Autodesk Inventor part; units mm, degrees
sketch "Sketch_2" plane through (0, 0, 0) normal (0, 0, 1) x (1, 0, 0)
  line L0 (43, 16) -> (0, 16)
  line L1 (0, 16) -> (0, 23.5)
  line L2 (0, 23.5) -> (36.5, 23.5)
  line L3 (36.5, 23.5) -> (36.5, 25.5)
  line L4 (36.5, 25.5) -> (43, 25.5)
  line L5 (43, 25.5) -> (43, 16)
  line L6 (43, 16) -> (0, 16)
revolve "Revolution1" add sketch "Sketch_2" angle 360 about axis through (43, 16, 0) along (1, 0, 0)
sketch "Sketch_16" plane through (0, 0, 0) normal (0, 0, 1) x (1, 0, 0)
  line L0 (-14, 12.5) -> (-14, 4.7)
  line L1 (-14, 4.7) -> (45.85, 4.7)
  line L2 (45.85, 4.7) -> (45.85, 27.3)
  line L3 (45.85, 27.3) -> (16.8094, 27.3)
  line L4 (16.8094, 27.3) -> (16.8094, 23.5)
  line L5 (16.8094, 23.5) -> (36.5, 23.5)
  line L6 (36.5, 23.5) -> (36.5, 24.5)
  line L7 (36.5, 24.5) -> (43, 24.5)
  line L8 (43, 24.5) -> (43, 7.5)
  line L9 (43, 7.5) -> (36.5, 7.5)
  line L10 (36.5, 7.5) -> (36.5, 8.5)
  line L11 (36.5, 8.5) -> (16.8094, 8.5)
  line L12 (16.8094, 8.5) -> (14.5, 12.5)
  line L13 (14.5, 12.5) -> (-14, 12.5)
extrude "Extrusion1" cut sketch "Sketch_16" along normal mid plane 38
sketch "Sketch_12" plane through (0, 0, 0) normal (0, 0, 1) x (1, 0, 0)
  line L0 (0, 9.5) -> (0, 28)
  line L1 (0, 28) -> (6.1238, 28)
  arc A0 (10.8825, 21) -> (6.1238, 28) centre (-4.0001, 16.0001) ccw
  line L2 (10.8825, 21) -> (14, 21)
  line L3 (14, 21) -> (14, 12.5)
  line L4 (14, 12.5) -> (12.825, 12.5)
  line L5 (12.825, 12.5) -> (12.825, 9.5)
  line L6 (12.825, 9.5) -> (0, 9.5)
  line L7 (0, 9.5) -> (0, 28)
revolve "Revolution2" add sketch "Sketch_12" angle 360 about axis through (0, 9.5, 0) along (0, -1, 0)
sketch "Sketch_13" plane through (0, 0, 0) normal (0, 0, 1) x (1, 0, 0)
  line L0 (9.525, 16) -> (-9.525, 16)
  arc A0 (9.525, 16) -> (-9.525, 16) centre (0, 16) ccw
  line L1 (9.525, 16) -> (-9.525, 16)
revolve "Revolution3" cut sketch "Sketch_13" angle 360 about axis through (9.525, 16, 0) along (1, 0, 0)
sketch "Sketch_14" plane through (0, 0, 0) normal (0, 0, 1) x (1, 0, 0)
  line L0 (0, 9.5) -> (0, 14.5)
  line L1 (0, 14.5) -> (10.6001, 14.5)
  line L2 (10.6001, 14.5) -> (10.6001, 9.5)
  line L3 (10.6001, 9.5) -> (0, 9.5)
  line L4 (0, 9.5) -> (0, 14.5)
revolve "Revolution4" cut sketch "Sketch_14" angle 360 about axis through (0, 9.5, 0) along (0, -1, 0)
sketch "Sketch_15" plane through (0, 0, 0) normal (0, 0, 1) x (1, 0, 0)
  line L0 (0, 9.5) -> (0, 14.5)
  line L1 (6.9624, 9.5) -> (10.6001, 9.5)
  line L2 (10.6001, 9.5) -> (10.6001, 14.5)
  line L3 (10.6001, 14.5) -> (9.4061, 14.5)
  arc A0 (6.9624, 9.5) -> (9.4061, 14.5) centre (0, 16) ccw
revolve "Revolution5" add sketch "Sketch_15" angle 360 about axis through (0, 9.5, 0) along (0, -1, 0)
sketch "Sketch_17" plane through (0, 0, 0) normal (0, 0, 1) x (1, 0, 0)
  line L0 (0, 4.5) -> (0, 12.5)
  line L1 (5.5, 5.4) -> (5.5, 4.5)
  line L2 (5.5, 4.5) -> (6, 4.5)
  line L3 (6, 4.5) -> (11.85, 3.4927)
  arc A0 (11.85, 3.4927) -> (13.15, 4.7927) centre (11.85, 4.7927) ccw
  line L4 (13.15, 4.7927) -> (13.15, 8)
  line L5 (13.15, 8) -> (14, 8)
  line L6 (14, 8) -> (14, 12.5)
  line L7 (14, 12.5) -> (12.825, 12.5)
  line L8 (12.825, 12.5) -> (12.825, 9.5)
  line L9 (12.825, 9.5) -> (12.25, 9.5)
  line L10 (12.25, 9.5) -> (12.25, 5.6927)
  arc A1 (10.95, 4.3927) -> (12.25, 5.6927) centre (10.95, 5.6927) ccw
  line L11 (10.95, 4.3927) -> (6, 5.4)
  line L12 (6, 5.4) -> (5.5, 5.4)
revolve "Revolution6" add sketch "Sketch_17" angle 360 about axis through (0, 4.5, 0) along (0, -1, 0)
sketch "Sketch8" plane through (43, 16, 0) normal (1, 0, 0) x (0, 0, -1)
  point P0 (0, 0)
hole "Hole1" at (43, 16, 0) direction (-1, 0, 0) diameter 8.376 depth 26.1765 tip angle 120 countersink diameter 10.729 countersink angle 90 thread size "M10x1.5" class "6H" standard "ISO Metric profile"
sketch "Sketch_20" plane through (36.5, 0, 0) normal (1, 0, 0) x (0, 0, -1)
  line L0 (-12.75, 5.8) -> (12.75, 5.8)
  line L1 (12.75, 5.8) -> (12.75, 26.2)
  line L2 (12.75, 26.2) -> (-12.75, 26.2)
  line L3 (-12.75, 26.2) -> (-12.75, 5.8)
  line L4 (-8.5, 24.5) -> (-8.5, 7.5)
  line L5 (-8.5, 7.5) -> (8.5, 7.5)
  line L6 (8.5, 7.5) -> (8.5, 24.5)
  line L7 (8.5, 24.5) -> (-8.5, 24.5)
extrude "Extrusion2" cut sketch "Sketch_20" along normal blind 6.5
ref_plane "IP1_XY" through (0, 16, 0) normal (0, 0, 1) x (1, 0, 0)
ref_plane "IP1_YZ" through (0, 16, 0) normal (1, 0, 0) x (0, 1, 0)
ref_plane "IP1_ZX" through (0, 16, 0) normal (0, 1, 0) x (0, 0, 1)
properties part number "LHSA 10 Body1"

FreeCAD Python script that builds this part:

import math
import FreeCAD as App
import Part
import Sketcher
Q = App.Units.Quantity


def add_polygon(sketch, points):
    """Adds a closed chain of lines whose ends are joined by coincident constraints."""
    first, n = sketch.GeometryCount, len(points)
    for a, b in zip(points, points[1:] + points[:1]):
        sketch.addGeometry(Part.LineSegment(App.Vector(*a, 0), App.Vector(*b, 0)), False)
    for i in range(n):
        sketch.addConstraint(Sketcher.Constraint("Coincident", first + i, 2, first + (i + 1) % n, 1))

doc = App.newDocument("Part")
body = doc.addObject("PartDesign::Body", "Body")

sketch1 = body.newObject("Sketcher::SketchObject", "Sketch")
sketch1.AttachmentSupport = (doc.getObject("XY_Plane"), [""])
sketch1.MapMode = "FlatFace"
add_polygon(sketch1, [(0, 16), (43, 16), (43, 25.5), (36.5, 25.5), (36.5, 23.5), (0, 23.5)])
sketch1.addGeometry(Part.LineSegment(App.Vector(0, 16, 0), App.Vector(43, 16, 0)), True)
sketch1.addConstraint([
    Sketcher.Constraint("Horizontal", 0),
    Sketcher.Constraint("Vertical", 1),
    Sketcher.Constraint("Horizontal", 2),
    Sketcher.Constraint("Vertical", 3),
    Sketcher.Constraint("Horizontal", 4),
    Sketcher.Constraint("Vertical", 5),
    Sketcher.Constraint("Horizontal", 6),
    Sketcher.Constraint("Coincident", 6, 1, 5, 2),
    Sketcher.Constraint("PointOnObject", 4, 2, -2),
    Sketcher.Constraint("Vertical", 1, 2, 6, 2),
    Sketcher.Constraint("DistanceX", 0, 1, 0, 2, 43.0),
    Sketcher.Constraint("DistanceY", 3, 2, 3, 1, 2.0),
    Sketcher.Constraint("DistanceX", 2, 2, 2, 1, 6.5),
    Sketcher.Constraint("DistanceY", 1, 1, 1, 2, 9.5),
    Sketcher.Constraint("DistanceY", -1, 1, 0, 2, 16.0),
])
revolution = body.newObject("PartDesign::Revolution", "Revolution")
revolution.Profile = sketch1
revolution.ReferenceAxis = (sketch1, ["Axis0"])
revolution.Angle = 360

sketch2 = body.newObject("Sketcher::SketchObject", "Sketch001")
sketch2.AttachmentSupport = (doc.getObject("XY_Plane"), [""])
sketch2.MapMode = "FlatFace"
add_polygon(sketch2, [(14.5, 12.5), (-14, 12.5), (-14, 4.7), (45.85, 4.7), (45.85, 27.3), (16.8094, 27.3), (16.8094, 23.5), (36.5, 23.5), (36.5, 24.5), (43, 24.5), (43, 7.5), (36.5, 7.5), (36.5, 8.5), (16.8094, 8.5)])
sketch2.addConstraint([
    Sketcher.Constraint("Horizontal", 0),
    Sketcher.Constraint("Vertical", 1),
    Sketcher.Constraint("Horizontal", 2),
    Sketcher.Constraint("Vertical", 3),
    Sketcher.Constraint("Horizontal", 4),
    Sketcher.Constraint("Vertical", 5),
    Sketcher.Constraint("Horizontal", 6),
    Sketcher.Constraint("Vertical", 7),
    Sketcher.Constraint("Horizontal", 8),
    Sketcher.Constraint("Vertical", 9),
    Sketcher.Constraint("Horizontal", 10),
    Sketcher.Constraint("Vertical", 11),
    Sketcher.Constraint("Horizontal", 12),
    Sketcher.Constraint("Vertical", 7, 2, 10, 2),
    Sketcher.Constraint("Vertical", 5, 2, 12, 2),
    Sketcher.Constraint("Equal", 7, 11),
    Sketcher.Constraint("DistanceY", 7, 1, 7, 2, 1.0),
    Sketcher.Constraint("DistanceY", 9, 2, 9, 1, 17.0),
    Sketcher.Constraint("Angle", 13, Q("120 deg")),
    Sketcher.Constraint("DistanceX", 0, 2, 0, 1, 28.5),
    Sketcher.Constraint("DistanceX", 8, 1, 8, 2, 6.5),
    Sketcher.Constraint("DistanceY", 1, 2, 1, 1, 7.8),
    Sketcher.Constraint("DistanceY", 3, 1, 3, 2, 22.6),
    Sketcher.Constraint("DistanceY", 5, 2, 5, 1, 3.8),
    Sketcher.Constraint("DistanceX", 0, 2, -1, 1, 14.0),
    Sketcher.Constraint("DistanceX", -1, 1, 8, 2, 43.0),
    Sketcher.Constraint("DistanceX", 2, 1, 2, 2, 59.85),
    Sketcher.Constraint("DistanceY", -1, 1, 0, 2, 12.5),
])
pocket1 = body.newObject("PartDesign::Pocket", "Pocket")
pocket1.Profile = sketch2
pocket1.Length = 38
pocket1.Midplane = True

sketch3 = body.newObject("Sketcher::SketchObject", "Sketch002")
sketch3.AttachmentSupport = (doc.getObject("XY_Plane"), [""])
sketch3.MapMode = "FlatFace"
sketch3.addGeometry([
    Part.LineSegment(App.Vector(0, 28, 0), App.Vector(0, 9.5, 0)),
    Part.LineSegment(App.Vector(0, 9.5, 0), App.Vector(12.825, 9.5, 0)),
    Part.LineSegment(App.Vector(12.825, 9.5, 0), App.Vector(12.825, 12.5, 0)),
    Part.LineSegment(App.Vector(12.825, 12.5, 0), App.Vector(14, 12.5, 0)),
    Part.LineSegment(App.Vector(14, 12.5, 0), App.Vector(14, 21, 0)),
    Part.LineSegment(App.Vector(14, 21, 0), App.Vector(10.8825, 21, 0)),
    Part.ArcOfCircle(Part.Circle(App.Vector(-4.0001, 16.0001, 0), App.Vector(0, 0, 1), 15.700025), math.radians(18.570087), math.radians(49.846833)),
    Part.LineSegment(App.Vector(6.1238, 28, 0), App.Vector(0, 28, 0)),
], False)
sketch3.addConstraint([
    Sketcher.Constraint("Coincident", 0, 2, 1, 1),
    Sketcher.Constraint("Coincident", 1, 2, 2, 1),
    Sketcher.Constraint("Coincident", 2, 2, 3, 1),
    Sketcher.Constraint("Coincident", 3, 2, 4, 1),
    Sketcher.Constraint("Coincident", 4, 2, 5, 1),
    Sketcher.Constraint("Coincident", 5, 2, 6, 1),
    Sketcher.Constraint("Coincident", 6, 2, 7, 1),
    Sketcher.Constraint("Coincident", 7, 2, 0, 1),
    Sketcher.Constraint("Vertical", 0),
    Sketcher.Constraint("Horizontal", 1),
    Sketcher.Constraint("Vertical", 2),
    Sketcher.Constraint("Horizontal", 3),
    Sketcher.Constraint("Vertical", 4),
    Sketcher.Constraint("Horizontal", 5),
    Sketcher.Constraint("Horizontal", 7),
    Sketcher.Constraint("PointOnObject", 0, 2, -2),
    Sketcher.Constraint("Radius", 6, 15.7),
    Sketcher.Constraint("DistanceY", 2, 1, 2, 2, 3.0),
    Sketcher.Constraint("DistanceY", 0, 2, 0, 1, 18.5),
    Sketcher.Constraint("DistanceY", 4, 1, 4, 2, 8.5),
    Sketcher.Constraint("DistanceX", 6, 3, -1, 1, 4.0),
    Sketcher.Constraint("DistanceY", -1, 1, 6, 3, 16.0),
    Sketcher.Constraint("DistanceX", -1, 1, 3, 2, 14.0),
    Sketcher.Constraint("DistanceY", -1, 1, 4, 2, 21.0),
    Sketcher.Constraint("DistanceX", 1, 1, 1, 2, 12.825),
])
revolution2 = body.newObject("PartDesign::Revolution", "Revolution001")
revolution2.Profile = sketch3
revolution2.ReferenceAxis = (sketch3, ["V_Axis"])
revolution2.Angle = 360

sketch4 = body.newObject("Sketcher::SketchObject", "Sketch003")
sketch4.AttachmentSupport = (doc.getObject("XY_Plane"), [""])
sketch4.MapMode = "FlatFace"
sketch4.addGeometry([
    Part.LineSegment(App.Vector(-9.525, 16, 0), App.Vector(9.525, 16, 0)),
    Part.ArcOfCircle(Part.Circle(App.Vector(0, 16, 0), App.Vector(0, 0, 1), 9.525), math.radians(0), math.radians(180)),
], False)
sketch4.addGeometry(Part.LineSegment(App.Vector(-9.525, 16, 0), App.Vector(9.525, 16, 0)), True)
sketch4.addConstraint([
    Sketcher.Constraint("Coincident", 0, 1, 1, 2),
    Sketcher.Constraint("Coincident", 1, 1, 0, 2),
    Sketcher.Constraint("Horizontal", 0),
    Sketcher.Constraint("Horizontal", 2),
    Sketcher.Constraint("Coincident", 2, 1, 0, 1),
    Sketcher.Constraint("PointOnObject", 1, 3, -2),
    Sketcher.Constraint("Horizontal", 1, 3, 0, 1),
    Sketcher.Constraint("Equal", 0, 2),
    Sketcher.Constraint("DistanceY", -1, 1, 1, 3, 16.0),
    Sketcher.Constraint("Radius", 1, 9.525),
])
groove = body.newObject("PartDesign::Groove", "Groove")
groove.Profile = sketch4
groove.ReferenceAxis = (sketch4, ["Axis0"])
groove.Angle = 360

sketch5 = body.newObject("Sketcher::SketchObject", "Sketch004")
sketch5.AttachmentSupport = (doc.getObject("XY_Plane"), [""])
sketch5.MapMode = "FlatFace"
add_polygon(sketch5, [(0, 14.5), (0, 9.5), (10.6001, 9.5), (10.6001, 14.5)])
sketch5.addConstraint([
    Sketcher.Constraint("Vertical", 0),
    Sketcher.Constraint("Horizontal", 1),
    Sketcher.Constraint("Vertical", 2),
    Sketcher.Constraint("Horizontal", 3),
    Sketcher.Constraint("PointOnObject", 0, 2, -2),
    Sketcher.Constraint("DistanceY", 0, 2, 0, 1, 5.0),
    Sketcher.Constraint("DistanceX", 1, 1, 1, 2, 10.6),
    Sketcher.Constraint("DistanceY", -1, 1, 0, 2, 9.5),
])
groove2 = body.newObject("PartDesign::Groove", "Groove001")
groove2.Profile = sketch5
groove2.ReferenceAxis = (sketch5, ["V_Axis"])
groove2.Angle = 360

sketch6 = body.newObject("Sketcher::SketchObject", "Sketch005")
sketch6.AttachmentSupport = (doc.getObject("XY_Plane"), [""])
sketch6.MapMode = "FlatFace"
sketch6.addGeometry([
    Part.ArcOfCircle(Part.Circle(App.Vector(0, 16, 0), App.Vector(0, 0, 1), 9.524968), math.radians(-43.032806), math.radians(-9.060721)),
    Part.LineSegment(App.Vector(6.9624, 9.5, 0), App.Vector(10.6001, 9.5, 0)),
    Part.LineSegment(App.Vector(10.6001, 9.5, 0), App.Vector(10.6001, 14.5, 0)),
    Part.LineSegment(App.Vector(10.6001, 14.5, 0), App.Vector(9.4061, 14.5, 0)),
], False)
sketch6.addConstraint([
    Sketcher.Constraint("Coincident", 0, 1, 1, 1),
    Sketcher.Constraint("Coincident", 1, 2, 2, 1),
    Sketcher.Constraint("Coincident", 2, 2, 3, 1),
    Sketcher.Constraint("Coincident", 3, 2, 0, 2),
    Sketcher.Constraint("Horizontal", 1),
    Sketcher.Constraint("Vertical", 2),
    Sketcher.Constraint("Horizontal", 3),
    Sketcher.Constraint("PointOnObject", 0, 3, -2),
    Sketcher.Constraint("DistanceY", 2, 1, 2, 2, 5.0),
    Sketcher.Constraint("DistanceY", -1, 1, 0, 3, 16.0),
    Sketcher.Constraint("Radius", 0, 9.525),
    Sketcher.Constraint("DistanceY", -1, 1, 0, 1, 9.5),
    Sketcher.Constraint("DistanceX", -1, 1, 1, 2, 10.6),
])
revolution3 = body.newObject("PartDesign::Revolution", "Revolution002")
revolution3.Profile = sketch6
revolution3.ReferenceAxis = (sketch6, ["V_Axis"])
revolution3.Angle = 360

sketch7 = body.newObject("Sketcher::SketchObject", "Sketch006")
sketch7.AttachmentSupport = (doc.getObject("XY_Plane"), [""])
sketch7.MapMode = "FlatFace"
sketch7.addGeometry([
    Part.LineSegment(App.Vector(6, 5.4, 0), App.Vector(5.5, 5.4, 0)),
    Part.LineSegment(App.Vector(5.5, 5.4, 0), App.Vector(5.5, 4.5, 0)),
    Part.LineSegment(App.Vector(5.5, 4.5, 0), App.Vector(6, 4.5, 0)),
    Part.LineSegment(App.Vector(6, 4.5, 0), App.Vector(11.85, 3.4927, 0)),
    Part.ArcOfCircle(Part.Circle(App.Vector(11.85, 4.7927, 0), App.Vector(0, 0, 1), 1.3), math.radians(-90), math.radians(0)),
    Part.LineSegment(App.Vector(13.15, 4.7927, 0), App.Vector(13.15, 8, 0)),
    Part.LineSegment(App.Vector(13.15, 8, 0), App.Vector(14, 8, 0)),
    Part.LineSegment(App.Vector(14, 8, 0), App.Vector(14, 12.5, 0)),
    Part.LineSegment(App.Vector(14, 12.5, 0), App.Vector(12.825, 12.5, 0)),
    Part.LineSegment(App.Vector(12.825, 12.5, 0), App.Vector(12.825, 9.5, 0)),
    Part.LineSegment(App.Vector(12.825, 9.5, 0), App.Vector(12.25, 9.5, 0)),
    Part.LineSegment(App.Vector(12.25, 9.5, 0), App.Vector(12.25, 5.6927, 0)),
    Part.ArcOfCircle(Part.Circle(App.Vector(10.95, 5.6927, 0), App.Vector(0, 0, 1), 1.3), math.radians(-90), math.radians(0)),
    Part.LineSegment(App.Vector(10.95, 4.3927, 0), App.Vector(6, 5.4, 0)),
], False)
sketch7.addConstraint([
    Sketcher.Constraint("Coincident", 0, 2, 1, 1),
    Sketcher.Constraint("Coincident", 1, 2, 2, 1),
    Sketcher.Constraint("Coincident", 2, 2, 3, 1),
    Sketcher.Constraint("Coincident", 3, 2, 4, 1),
    Sketcher.Constraint("Tangent", 4, 2, 5, 1),
    Sketcher.Constraint("Coincident", 5, 2, 6, 1),
    Sketcher.Constraint("Coincident", 6, 2, 7, 1),
    Sketcher.Constraint("Coincident", 7, 2, 8, 1),
    Sketcher.Constraint("Coincident", 8, 2, 9, 1),
    Sketcher.Constraint("Coincident", 9, 2, 10, 1),
    Sketcher.Constraint("Coincident", 10, 2, 11, 1),
    Sketcher.Constraint("Tangent", 11, 2, 12, 2),
    Sketcher.Constraint("Coincident", 12, 1, 13, 1),
    Sketcher.Constraint("Coincident", 13, 2, 0, 1),
    Sketcher.Constraint("Horizontal", 0),
    Sketcher.Constraint("Vertical", 1),
    Sketcher.Constraint("Horizontal", 2),
    Sketcher.Constraint("Vertical", 5),
    Sketcher.Constraint("Horizontal", 6),
    Sketcher.Constraint("Vertical", 7),
    Sketcher.Constraint("Horizontal", 8),
    Sketcher.Constraint("Vertical", 9),
    Sketcher.Constraint("Horizontal", 10),
    Sketcher.Constraint("Vertical", 11),
    Sketcher.Constraint("Equal", 4, 12),
    Sketcher.Constraint("Vertical", 4, 3, 3, 2),
    Sketcher.Constraint("Vertical", 2, 2, 13, 2),
    Sketcher.Constraint("Radius", 4, 1.3),
    Sketcher.Constraint("DistanceY", 9, 2, 9, 1, 3.0),
    Sketcher.Constraint("DistanceX", 0, 2, 0, 1, 0.5),
    Sketcher.Constraint("DistanceY", 1, 2, 1, 1, 0.9),
    Sketcher.Constraint("DistanceY", 7, 1, 7, 2, 4.5),
    Sketcher.Constraint("DistanceX", -1, 1, 2, 2, 6.0),
    Sketcher.Constraint("DistanceY", -1, 1, 5, 2, 8.0),
    Sketcher.Constraint("DistanceX", -1, 1, 6, 2, 14.0),
    Sketcher.Constraint("DistanceX", 6, 1, 6, 2, 0.85),
    Sketcher.Constraint("DistanceY", -1, 1, 0, 2, 5.4),
    Sketcher.Constraint("Angle", 3, Q("-9.7698 deg")),
    Sketcher.Constraint("DistanceX", 12, 3, 4, 3, 0.9),
    Sketcher.Constraint("DistanceY", 4, 3, 12, 3, 0.9),
    Sketcher.Constraint("DistanceX", 12, 1, 4, 3, 0.9),
    Sketcher.Constraint("DistanceX", 8, 2, 8, 1, 1.175),
])
revolution4 = body.newObject("PartDesign::Revolution", "Revolution003")
revolution4.Profile = sketch7
revolution4.ReferenceAxis = (sketch7, ["V_Axis"])
revolution4.Angle = 360

sketch8 = body.newObject("Sketcher::SketchObject", "Sketch007")
sketch8.AttachmentSupport = (doc.getObject("YZ_Plane"), [""])
sketch8.MapMode = "FlatFace"
sketch8.AttachmentOffset = App.Placement(App.Vector(0, 0, 43), App.Rotation())
sketch8.addGeometry(Part.Circle(App.Vector(16, 0, 0), App.Vector(0, 0, 1), 4.188), False)
sketch8.addConstraint([
    Sketcher.Constraint("PointOnObject", 0, 3, -1),
    Sketcher.Constraint("Diameter", 0, 8.376),
    Sketcher.Constraint("DistanceX", -1, 1, 0, 3, 16.0),
])
doc.recompute()
hole = body.newObject("PartDesign::Hole", "Hole")
hole.Profile = sketch8
hole.ThreadType = "None"
hole.Diameter = 8.376
hole.DepthType = "Dimension"
hole.Depth = 26.1765
hole.DrillPoint = "Angled"
hole.DrillPointAngle = 120
hole.HoleCutType = "Countersink"
hole.HoleCutDiameter = 10.729
hole.HoleCutCountersinkAngle = 90

sketch9 = body.newObject("Sketcher::SketchObject", "Sketch008")
sketch9.AttachmentSupport = (doc.getObject("YZ_Plane"), [""])
sketch9.MapMode = "FlatFace"
sketch9.AttachmentOffset = App.Placement(App.Vector(0, 0, 36.5), App.Rotation())
add_polygon(sketch9, [(26.2, 12.75), (5.8, 12.75), (5.8, -12.75), (26.2, -12.75)])
add_polygon(sketch9, [(7.5, 8.5), (24.5, 8.5), (24.5, -8.5), (7.5, -8.5)])
sketch9.addConstraint([
    Sketcher.Constraint("Horizontal", 0),
    Sketcher.Constraint("Vertical", 1),
    Sketcher.Constraint("Horizontal", 2),
    Sketcher.Constraint("Vertical", 3),
    Sketcher.Constraint("Horizontal", 4),
    Sketcher.Constraint("Vertical", 5),
    Sketcher.Constraint("Horizontal", 6),
    Sketcher.Constraint("Vertical", 7),
    Sketcher.Constraint("Equal", 6, 5),
    Sketcher.Constraint("DistanceX", 4, 1, 4, 2, 17.0),
    Sketcher.Constraint("DistanceX", 0, 2, 0, 1, 20.4),
    Sketcher.Constraint("DistanceY", 1, 2, 1, 1, 25.5),
    Sketcher.Constraint("DistanceX", -1, 1, 0, 2, 5.8),
    Sketcher.Constraint("DistanceX", -1, 1, 4, 2, 24.5),
    Sketcher.Constraint("DistanceY", -1, 1, 4, 2, 8.5),
    Sketcher.Constraint("DistanceY", -1, 1, 0, 2, 12.75),
])
pocket2 = body.newObject("PartDesign::Pocket", "Pocket001")
pocket2.Profile = sketch9
pocket2.Length = 6.5
pocket2.Reversed = True

doc.recompute()
